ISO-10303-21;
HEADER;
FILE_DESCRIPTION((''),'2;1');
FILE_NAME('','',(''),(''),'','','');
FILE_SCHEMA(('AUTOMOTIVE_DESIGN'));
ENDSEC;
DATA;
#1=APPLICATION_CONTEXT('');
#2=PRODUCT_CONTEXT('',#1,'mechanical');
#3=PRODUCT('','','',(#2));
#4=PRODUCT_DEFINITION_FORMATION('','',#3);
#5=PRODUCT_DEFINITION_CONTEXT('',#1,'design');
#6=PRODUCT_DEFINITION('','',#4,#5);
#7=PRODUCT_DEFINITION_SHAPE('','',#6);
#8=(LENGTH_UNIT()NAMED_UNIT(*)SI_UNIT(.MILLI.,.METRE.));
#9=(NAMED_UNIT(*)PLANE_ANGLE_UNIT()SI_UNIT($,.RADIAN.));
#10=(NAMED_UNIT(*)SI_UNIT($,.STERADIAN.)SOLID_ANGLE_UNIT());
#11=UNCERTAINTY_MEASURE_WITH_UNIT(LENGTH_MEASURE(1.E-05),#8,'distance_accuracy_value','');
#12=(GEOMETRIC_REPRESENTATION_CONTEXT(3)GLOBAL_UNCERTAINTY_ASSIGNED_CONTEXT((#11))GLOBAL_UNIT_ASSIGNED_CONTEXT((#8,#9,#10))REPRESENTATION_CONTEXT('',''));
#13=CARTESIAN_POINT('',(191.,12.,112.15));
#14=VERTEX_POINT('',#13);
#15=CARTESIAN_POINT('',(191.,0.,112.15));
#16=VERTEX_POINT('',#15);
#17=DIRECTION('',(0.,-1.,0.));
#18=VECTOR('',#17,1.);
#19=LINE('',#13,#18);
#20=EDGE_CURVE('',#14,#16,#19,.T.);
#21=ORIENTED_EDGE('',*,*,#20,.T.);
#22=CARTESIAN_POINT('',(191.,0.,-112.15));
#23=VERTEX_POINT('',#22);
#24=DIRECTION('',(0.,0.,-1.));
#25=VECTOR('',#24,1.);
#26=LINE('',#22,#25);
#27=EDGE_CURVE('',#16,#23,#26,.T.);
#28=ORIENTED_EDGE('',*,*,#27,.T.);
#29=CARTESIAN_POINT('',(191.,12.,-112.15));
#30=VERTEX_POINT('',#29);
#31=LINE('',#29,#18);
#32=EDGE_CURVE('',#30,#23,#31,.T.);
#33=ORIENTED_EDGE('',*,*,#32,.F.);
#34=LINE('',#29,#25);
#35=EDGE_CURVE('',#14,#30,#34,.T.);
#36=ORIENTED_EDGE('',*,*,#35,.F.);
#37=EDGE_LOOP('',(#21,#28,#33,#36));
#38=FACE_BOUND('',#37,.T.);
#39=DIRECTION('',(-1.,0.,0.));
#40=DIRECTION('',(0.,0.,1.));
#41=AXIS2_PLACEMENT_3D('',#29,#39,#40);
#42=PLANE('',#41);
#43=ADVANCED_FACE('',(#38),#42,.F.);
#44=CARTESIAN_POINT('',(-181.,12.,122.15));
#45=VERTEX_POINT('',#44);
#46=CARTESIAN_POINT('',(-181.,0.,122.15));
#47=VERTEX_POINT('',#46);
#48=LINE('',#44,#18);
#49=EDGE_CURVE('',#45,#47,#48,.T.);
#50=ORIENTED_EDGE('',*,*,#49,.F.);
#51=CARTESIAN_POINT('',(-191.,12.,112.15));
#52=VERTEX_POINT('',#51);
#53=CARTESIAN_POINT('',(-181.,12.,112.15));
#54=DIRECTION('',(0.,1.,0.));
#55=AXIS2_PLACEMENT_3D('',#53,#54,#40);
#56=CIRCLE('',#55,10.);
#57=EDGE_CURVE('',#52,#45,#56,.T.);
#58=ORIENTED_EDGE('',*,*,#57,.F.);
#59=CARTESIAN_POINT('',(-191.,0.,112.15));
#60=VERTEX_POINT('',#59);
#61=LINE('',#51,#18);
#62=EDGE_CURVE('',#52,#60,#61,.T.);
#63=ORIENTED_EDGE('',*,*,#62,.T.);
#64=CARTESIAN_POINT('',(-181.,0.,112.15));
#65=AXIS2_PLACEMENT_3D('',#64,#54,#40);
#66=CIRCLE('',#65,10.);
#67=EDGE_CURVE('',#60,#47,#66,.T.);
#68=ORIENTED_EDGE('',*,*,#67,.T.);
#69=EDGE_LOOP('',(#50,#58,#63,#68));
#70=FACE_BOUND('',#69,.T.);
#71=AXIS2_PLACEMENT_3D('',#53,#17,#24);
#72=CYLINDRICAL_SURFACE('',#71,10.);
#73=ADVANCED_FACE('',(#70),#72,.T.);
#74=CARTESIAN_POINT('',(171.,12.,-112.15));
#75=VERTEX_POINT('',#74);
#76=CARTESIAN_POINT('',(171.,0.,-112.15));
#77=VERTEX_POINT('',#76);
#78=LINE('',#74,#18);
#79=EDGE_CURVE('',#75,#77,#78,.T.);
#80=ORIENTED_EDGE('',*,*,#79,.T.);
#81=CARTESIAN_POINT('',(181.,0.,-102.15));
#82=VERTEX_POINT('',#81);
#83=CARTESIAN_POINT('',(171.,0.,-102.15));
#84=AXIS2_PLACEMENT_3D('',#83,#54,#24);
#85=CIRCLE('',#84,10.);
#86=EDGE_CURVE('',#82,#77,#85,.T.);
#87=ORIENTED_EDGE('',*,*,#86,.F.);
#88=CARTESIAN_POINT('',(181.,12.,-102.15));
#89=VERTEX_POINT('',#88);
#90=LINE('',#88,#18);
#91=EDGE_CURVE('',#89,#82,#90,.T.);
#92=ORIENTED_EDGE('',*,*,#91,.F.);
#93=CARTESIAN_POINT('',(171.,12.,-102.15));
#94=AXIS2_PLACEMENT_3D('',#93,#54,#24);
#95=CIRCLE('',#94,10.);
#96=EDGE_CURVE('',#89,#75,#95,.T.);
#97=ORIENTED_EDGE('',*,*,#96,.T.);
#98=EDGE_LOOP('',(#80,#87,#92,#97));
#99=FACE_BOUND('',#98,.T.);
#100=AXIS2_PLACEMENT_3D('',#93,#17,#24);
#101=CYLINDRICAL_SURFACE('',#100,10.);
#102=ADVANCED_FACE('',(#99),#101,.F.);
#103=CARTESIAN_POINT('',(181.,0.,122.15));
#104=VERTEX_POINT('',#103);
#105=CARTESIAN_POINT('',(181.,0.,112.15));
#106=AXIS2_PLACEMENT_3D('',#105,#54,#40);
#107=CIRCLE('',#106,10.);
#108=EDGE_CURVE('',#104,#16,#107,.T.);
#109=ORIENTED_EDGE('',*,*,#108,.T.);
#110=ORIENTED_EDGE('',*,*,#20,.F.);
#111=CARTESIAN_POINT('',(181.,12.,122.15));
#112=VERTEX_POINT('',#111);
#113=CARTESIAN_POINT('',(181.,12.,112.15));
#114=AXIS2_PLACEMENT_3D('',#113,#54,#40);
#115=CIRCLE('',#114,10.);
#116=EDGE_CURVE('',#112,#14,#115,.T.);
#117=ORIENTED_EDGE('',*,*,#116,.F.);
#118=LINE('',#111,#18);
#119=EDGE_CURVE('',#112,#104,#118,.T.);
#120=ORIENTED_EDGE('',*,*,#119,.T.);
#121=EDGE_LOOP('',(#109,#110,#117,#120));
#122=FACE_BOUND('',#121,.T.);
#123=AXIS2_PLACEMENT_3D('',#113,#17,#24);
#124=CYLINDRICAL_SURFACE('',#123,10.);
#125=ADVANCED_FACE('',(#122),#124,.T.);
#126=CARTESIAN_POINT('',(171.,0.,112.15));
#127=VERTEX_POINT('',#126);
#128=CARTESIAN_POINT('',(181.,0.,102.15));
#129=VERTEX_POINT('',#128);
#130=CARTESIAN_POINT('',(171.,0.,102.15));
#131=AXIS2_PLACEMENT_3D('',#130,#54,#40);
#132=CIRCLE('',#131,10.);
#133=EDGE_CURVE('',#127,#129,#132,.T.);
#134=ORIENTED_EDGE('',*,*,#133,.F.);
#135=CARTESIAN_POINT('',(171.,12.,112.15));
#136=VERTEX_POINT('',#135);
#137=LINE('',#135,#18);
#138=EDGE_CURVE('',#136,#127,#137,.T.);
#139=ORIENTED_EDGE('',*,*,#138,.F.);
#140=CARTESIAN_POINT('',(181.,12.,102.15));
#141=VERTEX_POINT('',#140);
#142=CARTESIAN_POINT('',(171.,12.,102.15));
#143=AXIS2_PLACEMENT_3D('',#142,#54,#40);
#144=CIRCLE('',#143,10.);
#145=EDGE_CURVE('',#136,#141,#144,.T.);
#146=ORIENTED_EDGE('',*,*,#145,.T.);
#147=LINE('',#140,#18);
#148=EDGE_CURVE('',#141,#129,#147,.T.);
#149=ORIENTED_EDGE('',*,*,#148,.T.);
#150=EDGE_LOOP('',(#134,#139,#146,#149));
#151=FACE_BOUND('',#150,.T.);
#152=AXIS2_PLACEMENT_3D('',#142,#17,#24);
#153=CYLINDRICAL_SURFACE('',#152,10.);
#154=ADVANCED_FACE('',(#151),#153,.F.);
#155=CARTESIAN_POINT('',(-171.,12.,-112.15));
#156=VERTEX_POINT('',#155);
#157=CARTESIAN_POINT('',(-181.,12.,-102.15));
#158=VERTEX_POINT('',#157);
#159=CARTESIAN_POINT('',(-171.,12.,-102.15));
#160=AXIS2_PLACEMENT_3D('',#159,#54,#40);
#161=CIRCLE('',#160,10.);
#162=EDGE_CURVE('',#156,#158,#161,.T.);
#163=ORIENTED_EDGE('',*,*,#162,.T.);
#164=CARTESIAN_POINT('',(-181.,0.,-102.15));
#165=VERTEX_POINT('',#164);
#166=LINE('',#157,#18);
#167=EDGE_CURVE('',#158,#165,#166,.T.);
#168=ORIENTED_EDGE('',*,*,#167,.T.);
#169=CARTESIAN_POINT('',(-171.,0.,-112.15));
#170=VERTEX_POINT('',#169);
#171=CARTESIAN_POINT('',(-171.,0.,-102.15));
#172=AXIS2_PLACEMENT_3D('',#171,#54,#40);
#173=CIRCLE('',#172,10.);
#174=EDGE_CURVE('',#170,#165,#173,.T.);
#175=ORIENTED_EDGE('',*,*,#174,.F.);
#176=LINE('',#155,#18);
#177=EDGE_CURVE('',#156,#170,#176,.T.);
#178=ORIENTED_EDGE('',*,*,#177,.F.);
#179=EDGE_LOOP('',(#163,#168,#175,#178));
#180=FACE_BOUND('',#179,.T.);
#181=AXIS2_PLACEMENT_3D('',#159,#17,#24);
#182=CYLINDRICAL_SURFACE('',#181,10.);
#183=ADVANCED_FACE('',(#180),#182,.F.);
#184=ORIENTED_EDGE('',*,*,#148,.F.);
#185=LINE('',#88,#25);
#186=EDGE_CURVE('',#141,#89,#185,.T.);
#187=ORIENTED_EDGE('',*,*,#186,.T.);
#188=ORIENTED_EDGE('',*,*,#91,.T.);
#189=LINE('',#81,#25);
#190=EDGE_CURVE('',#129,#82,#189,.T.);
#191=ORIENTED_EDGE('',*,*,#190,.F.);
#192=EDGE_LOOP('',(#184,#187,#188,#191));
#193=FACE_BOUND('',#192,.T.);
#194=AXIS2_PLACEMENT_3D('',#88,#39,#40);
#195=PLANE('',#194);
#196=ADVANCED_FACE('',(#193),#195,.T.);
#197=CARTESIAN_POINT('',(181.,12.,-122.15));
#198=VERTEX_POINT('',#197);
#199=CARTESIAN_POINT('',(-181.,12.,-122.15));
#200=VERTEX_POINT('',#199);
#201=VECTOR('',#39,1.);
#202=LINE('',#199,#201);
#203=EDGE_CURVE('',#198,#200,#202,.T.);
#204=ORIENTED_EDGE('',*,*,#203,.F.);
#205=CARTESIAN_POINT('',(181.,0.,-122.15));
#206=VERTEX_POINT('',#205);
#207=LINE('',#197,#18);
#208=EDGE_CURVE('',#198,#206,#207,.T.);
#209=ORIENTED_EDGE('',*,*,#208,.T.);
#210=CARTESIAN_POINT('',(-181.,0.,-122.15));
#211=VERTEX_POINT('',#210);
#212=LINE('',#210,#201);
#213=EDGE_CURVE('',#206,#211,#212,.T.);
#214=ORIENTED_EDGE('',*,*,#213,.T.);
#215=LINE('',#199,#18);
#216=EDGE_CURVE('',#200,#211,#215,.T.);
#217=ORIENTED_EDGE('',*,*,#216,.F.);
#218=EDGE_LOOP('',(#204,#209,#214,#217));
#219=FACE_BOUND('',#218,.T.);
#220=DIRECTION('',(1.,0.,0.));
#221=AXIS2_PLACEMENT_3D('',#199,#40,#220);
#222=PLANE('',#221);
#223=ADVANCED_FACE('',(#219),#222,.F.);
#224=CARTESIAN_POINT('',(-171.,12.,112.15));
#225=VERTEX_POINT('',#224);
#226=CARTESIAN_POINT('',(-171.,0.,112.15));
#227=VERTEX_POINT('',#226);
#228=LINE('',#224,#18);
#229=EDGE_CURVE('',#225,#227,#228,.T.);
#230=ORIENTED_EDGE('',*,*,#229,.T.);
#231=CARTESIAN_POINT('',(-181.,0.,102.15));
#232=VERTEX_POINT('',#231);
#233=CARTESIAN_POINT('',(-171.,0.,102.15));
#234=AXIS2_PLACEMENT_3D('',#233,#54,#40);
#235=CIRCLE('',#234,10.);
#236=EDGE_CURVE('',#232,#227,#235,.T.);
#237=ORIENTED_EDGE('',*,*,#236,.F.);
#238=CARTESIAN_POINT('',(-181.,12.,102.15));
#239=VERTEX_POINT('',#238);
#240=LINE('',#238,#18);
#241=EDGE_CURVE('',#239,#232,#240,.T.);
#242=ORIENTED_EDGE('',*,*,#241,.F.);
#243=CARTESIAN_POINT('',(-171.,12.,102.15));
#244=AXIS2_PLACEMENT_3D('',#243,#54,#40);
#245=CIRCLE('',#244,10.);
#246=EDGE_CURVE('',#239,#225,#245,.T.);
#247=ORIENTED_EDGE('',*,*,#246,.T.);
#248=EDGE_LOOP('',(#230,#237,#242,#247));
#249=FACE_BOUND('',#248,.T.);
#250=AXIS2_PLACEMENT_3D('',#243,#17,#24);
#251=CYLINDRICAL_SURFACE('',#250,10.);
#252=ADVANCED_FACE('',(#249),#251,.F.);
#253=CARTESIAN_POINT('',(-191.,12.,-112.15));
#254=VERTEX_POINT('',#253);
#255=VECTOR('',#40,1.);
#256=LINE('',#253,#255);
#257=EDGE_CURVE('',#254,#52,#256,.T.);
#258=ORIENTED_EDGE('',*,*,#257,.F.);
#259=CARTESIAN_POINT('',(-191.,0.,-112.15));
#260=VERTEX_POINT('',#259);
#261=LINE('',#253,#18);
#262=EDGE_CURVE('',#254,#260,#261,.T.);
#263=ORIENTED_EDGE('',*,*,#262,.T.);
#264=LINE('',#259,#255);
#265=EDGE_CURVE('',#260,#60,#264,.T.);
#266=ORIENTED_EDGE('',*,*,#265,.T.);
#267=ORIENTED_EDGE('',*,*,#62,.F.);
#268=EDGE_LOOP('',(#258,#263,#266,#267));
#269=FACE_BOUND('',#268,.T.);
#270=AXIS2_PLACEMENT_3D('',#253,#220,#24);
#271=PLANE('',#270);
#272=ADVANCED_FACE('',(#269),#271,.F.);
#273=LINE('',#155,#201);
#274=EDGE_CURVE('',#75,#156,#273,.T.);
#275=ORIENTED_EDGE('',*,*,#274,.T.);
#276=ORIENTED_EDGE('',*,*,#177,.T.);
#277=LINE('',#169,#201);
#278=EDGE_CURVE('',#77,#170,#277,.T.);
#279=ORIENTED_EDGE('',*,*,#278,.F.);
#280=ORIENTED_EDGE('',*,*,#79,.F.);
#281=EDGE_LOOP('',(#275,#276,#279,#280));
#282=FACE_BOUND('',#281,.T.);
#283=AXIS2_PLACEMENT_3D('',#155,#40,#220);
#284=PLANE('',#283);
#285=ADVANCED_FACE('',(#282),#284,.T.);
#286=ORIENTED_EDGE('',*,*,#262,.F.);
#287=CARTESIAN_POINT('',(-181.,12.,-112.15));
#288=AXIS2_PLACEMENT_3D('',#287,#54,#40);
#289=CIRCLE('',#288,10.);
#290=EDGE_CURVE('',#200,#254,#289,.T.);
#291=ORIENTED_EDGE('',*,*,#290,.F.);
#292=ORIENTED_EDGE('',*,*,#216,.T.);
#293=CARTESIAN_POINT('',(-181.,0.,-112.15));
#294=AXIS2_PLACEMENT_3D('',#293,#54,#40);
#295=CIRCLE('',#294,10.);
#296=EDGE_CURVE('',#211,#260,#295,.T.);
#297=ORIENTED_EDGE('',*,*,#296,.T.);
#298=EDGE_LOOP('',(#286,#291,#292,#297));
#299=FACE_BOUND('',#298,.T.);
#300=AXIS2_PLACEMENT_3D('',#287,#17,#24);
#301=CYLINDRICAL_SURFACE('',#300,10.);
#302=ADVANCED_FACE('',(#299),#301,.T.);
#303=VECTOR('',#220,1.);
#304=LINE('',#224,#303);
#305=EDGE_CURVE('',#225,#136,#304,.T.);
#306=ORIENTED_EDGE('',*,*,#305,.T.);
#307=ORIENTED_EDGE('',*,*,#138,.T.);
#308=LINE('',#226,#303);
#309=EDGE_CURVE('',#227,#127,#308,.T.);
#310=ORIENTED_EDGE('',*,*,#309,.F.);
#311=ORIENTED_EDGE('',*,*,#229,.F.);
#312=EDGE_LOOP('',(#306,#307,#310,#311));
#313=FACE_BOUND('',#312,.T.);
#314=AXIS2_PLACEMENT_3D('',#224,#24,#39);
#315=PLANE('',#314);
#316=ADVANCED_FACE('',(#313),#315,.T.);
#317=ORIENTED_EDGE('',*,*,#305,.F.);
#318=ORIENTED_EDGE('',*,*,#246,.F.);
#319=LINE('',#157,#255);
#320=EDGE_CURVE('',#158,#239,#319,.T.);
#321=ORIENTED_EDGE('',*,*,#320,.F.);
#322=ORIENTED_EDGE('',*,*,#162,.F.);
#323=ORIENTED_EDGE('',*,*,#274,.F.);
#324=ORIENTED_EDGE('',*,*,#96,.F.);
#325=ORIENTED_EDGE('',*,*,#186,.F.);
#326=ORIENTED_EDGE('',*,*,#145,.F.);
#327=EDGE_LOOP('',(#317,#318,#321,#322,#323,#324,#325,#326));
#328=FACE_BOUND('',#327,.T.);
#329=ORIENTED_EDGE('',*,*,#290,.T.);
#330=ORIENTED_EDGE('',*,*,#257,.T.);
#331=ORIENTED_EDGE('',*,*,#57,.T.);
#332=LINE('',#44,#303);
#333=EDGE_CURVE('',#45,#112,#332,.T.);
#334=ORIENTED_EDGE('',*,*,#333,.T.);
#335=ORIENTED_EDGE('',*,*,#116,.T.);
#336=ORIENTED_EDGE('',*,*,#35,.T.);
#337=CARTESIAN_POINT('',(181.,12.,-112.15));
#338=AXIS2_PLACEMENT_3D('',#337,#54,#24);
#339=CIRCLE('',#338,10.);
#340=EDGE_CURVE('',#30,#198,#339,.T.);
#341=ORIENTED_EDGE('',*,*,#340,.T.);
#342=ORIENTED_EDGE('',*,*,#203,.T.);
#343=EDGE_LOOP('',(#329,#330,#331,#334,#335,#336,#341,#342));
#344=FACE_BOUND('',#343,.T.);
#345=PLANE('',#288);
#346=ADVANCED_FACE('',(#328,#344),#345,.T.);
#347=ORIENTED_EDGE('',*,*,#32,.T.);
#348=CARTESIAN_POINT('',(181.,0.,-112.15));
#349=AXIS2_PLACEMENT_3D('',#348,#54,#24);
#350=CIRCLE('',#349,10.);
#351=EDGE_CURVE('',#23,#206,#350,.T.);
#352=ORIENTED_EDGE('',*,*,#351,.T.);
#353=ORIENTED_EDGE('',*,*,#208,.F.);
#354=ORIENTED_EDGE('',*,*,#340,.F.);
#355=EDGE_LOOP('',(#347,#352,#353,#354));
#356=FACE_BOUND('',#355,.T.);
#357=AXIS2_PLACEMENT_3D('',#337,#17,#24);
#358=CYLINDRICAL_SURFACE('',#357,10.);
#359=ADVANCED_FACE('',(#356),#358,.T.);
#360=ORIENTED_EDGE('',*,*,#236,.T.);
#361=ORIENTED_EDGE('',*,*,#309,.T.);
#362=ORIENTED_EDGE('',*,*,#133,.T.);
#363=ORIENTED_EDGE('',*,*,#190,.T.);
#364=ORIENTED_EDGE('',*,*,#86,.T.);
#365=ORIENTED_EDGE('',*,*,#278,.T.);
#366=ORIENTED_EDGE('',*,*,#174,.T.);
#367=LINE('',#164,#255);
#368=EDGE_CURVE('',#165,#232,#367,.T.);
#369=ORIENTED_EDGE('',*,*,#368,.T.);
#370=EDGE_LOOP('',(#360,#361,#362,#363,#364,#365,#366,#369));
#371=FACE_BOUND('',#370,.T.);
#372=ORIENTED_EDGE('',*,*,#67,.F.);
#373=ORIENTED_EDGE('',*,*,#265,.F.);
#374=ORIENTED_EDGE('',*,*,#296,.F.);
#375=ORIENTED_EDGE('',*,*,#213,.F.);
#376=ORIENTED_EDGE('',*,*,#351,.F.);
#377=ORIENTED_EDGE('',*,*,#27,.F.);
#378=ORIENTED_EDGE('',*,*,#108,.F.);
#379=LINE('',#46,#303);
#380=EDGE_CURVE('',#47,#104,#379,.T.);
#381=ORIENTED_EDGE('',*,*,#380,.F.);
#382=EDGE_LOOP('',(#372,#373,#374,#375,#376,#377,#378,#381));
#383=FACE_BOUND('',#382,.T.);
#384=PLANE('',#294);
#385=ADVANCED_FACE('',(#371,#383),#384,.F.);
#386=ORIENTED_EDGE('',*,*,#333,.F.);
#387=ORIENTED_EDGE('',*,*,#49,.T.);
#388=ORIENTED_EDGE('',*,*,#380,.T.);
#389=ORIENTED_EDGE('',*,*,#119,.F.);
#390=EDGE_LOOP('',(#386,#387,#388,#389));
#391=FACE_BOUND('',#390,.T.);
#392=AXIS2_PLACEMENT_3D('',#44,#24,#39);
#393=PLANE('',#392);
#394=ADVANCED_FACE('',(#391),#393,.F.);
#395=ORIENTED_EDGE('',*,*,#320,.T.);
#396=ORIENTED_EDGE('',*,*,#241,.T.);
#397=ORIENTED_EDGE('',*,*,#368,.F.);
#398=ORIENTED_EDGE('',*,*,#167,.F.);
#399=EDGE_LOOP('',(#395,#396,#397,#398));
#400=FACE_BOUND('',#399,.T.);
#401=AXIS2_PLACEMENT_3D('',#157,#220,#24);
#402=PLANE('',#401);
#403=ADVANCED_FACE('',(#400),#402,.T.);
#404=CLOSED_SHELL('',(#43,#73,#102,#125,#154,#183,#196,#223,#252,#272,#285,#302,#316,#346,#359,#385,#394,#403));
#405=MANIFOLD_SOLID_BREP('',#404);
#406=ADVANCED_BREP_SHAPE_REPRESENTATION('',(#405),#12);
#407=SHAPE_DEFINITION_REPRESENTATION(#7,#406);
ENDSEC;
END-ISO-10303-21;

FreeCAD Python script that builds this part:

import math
import FreeCAD as App
import Part
import Sketcher

V = App.Vector

doc = App.newDocument("Part")
body = doc.addObject("PartDesign::Body", "Body")

# Sketch on XZ plane
sketch1 = doc.addObject("Sketcher::SketchObject", "Sketch")
body.addObject(sketch1)
sketch1.AttachmentSupport = (doc.XZ_Plane, [""])
sketch1.MapMode = "FlatFace"
sketch1.addGeometry([
    Part.LineSegment(V(181, -122.15, 0), V(-181, -122.15, 0)),  # 0
    Part.ArcOfCircle(Part.Circle(V(-181, -112.15, 0), V(0, 0, 1), 10), math.radians(180), math.radians(270)),  # 1
    Part.LineSegment(V(-191, -112.15, 0), V(-191, 112.15, 0)),  # 2
    Part.ArcOfCircle(Part.Circle(V(-181, 112.15, 0), V(0, 0, 1), 10), math.radians(90), math.radians(180)),  # 3
    Part.LineSegment(V(-181, 122.15, 0), V(181, 122.15, 0)),  # 4
    Part.ArcOfCircle(Part.Circle(V(181, 112.15, 0), V(0, 0, 1), 10), math.radians(0), math.radians(90)),  # 5
    Part.LineSegment(V(191, 112.15, 0), V(191, -112.15, 0)),  # 6
    Part.ArcOfCircle(Part.Circle(V(181, -112.15, 0), V(0, 0, 1), 10), math.radians(-90), math.radians(0)),  # 7
    Part.LineSegment(V(-171, -112.15, 0), V(171, -112.15, 0)),  # 8
    Part.ArcOfCircle(Part.Circle(V(171, -102.15, 0), V(0, 0, 1), 10), math.radians(-90), math.radians(0)),  # 9
    Part.LineSegment(V(181, -102.15, 0), V(181, 102.15, 0)),  # 10
    Part.ArcOfCircle(Part.Circle(V(171, 102.15, 0), V(0, 0, 1), 10), math.radians(0), math.radians(90)),  # 11
    Part.LineSegment(V(171, 112.15, 0), V(-171, 112.15, 0)),  # 12
    Part.ArcOfCircle(Part.Circle(V(-171, 102.15, 0), V(0, 0, 1), 10), math.radians(90), math.radians(180)),  # 13
    Part.LineSegment(V(-181, 102.15, 0), V(-181, -102.15, 0)),  # 14
    Part.ArcOfCircle(Part.Circle(V(-171, -102.15, 0), V(0, 0, 1), 10), math.radians(180), math.radians(270)),  # 15
], False)
sketch1.addConstraint([
    Sketcher.Constraint("Tangent", 0, 2, 1, 2),
    Sketcher.Constraint("Tangent", 1, 1, 2, 1),
    Sketcher.Constraint("Tangent", 2, 2, 3, 2),
    Sketcher.Constraint("Tangent", 3, 1, 4, 1),
    Sketcher.Constraint("Tangent", 4, 2, 5, 2),
    Sketcher.Constraint("Tangent", 5, 1, 6, 1),
    Sketcher.Constraint("Tangent", 6, 2, 7, 2),
    Sketcher.Constraint("Tangent", 7, 1, 0, 1),
    Sketcher.Constraint("Tangent", 8, 2, 9, 1),
    Sketcher.Constraint("Tangent", 9, 2, 10, 1),
    Sketcher.Constraint("Tangent", 10, 2, 11, 1),
    Sketcher.Constraint("Tangent", 11, 2, 12, 1),
    Sketcher.Constraint("Tangent", 12, 2, 13, 1),
    Sketcher.Constraint("Tangent", 13, 2, 14, 1),
    Sketcher.Constraint("Tangent", 14, 2, 15, 1),
    Sketcher.Constraint("Tangent", 15, 2, 8, 1),
    Sketcher.Constraint("Horizontal", 0),
    Sketcher.Constraint("Vertical", 2),
    Sketcher.Constraint("Horizontal", 4),
    Sketcher.Constraint("Vertical", 6),
    Sketcher.Constraint("Horizontal", 8),
    Sketcher.Constraint("Vertical", 10),
    Sketcher.Constraint("Horizontal", 12),
    Sketcher.Constraint("Vertical", 14),
    Sketcher.Constraint("Equal", 1, 3),
    Sketcher.Constraint("Equal", 3, 5),
    Sketcher.Constraint("Equal", 5, 7),
    Sketcher.Constraint("Equal", 7, 9),
    Sketcher.Constraint("Equal", 9, 11),
    Sketcher.Constraint("Equal", 11, 13),
    Sketcher.Constraint("Equal", 13, 15),
    Sketcher.Constraint("Symmetric", 1, 3, 5, 3, -1, 1),
    Sketcher.Constraint("Symmetric", 9, 3, 13, 3, -1, 1),
    Sketcher.Constraint("Horizontal", 6, 2, 8, 2),
    Sketcher.Constraint("Vertical", 7, 1, 9, 2),
    Sketcher.Constraint("Radius", 1, 10.0),
    Sketcher.Constraint("DistanceX", 0, 2, 0, 1, 362.0),
    Sketcher.Constraint("DistanceY", 2, 1, 2, 2, 224.3),
])
pad1 = doc.addObject("PartDesign::Pad", "Pad")
body.addObject(pad1)
pad1.Profile = sketch1
pad1.Length = 12
pad1.Reversed = True

doc.recompute()
